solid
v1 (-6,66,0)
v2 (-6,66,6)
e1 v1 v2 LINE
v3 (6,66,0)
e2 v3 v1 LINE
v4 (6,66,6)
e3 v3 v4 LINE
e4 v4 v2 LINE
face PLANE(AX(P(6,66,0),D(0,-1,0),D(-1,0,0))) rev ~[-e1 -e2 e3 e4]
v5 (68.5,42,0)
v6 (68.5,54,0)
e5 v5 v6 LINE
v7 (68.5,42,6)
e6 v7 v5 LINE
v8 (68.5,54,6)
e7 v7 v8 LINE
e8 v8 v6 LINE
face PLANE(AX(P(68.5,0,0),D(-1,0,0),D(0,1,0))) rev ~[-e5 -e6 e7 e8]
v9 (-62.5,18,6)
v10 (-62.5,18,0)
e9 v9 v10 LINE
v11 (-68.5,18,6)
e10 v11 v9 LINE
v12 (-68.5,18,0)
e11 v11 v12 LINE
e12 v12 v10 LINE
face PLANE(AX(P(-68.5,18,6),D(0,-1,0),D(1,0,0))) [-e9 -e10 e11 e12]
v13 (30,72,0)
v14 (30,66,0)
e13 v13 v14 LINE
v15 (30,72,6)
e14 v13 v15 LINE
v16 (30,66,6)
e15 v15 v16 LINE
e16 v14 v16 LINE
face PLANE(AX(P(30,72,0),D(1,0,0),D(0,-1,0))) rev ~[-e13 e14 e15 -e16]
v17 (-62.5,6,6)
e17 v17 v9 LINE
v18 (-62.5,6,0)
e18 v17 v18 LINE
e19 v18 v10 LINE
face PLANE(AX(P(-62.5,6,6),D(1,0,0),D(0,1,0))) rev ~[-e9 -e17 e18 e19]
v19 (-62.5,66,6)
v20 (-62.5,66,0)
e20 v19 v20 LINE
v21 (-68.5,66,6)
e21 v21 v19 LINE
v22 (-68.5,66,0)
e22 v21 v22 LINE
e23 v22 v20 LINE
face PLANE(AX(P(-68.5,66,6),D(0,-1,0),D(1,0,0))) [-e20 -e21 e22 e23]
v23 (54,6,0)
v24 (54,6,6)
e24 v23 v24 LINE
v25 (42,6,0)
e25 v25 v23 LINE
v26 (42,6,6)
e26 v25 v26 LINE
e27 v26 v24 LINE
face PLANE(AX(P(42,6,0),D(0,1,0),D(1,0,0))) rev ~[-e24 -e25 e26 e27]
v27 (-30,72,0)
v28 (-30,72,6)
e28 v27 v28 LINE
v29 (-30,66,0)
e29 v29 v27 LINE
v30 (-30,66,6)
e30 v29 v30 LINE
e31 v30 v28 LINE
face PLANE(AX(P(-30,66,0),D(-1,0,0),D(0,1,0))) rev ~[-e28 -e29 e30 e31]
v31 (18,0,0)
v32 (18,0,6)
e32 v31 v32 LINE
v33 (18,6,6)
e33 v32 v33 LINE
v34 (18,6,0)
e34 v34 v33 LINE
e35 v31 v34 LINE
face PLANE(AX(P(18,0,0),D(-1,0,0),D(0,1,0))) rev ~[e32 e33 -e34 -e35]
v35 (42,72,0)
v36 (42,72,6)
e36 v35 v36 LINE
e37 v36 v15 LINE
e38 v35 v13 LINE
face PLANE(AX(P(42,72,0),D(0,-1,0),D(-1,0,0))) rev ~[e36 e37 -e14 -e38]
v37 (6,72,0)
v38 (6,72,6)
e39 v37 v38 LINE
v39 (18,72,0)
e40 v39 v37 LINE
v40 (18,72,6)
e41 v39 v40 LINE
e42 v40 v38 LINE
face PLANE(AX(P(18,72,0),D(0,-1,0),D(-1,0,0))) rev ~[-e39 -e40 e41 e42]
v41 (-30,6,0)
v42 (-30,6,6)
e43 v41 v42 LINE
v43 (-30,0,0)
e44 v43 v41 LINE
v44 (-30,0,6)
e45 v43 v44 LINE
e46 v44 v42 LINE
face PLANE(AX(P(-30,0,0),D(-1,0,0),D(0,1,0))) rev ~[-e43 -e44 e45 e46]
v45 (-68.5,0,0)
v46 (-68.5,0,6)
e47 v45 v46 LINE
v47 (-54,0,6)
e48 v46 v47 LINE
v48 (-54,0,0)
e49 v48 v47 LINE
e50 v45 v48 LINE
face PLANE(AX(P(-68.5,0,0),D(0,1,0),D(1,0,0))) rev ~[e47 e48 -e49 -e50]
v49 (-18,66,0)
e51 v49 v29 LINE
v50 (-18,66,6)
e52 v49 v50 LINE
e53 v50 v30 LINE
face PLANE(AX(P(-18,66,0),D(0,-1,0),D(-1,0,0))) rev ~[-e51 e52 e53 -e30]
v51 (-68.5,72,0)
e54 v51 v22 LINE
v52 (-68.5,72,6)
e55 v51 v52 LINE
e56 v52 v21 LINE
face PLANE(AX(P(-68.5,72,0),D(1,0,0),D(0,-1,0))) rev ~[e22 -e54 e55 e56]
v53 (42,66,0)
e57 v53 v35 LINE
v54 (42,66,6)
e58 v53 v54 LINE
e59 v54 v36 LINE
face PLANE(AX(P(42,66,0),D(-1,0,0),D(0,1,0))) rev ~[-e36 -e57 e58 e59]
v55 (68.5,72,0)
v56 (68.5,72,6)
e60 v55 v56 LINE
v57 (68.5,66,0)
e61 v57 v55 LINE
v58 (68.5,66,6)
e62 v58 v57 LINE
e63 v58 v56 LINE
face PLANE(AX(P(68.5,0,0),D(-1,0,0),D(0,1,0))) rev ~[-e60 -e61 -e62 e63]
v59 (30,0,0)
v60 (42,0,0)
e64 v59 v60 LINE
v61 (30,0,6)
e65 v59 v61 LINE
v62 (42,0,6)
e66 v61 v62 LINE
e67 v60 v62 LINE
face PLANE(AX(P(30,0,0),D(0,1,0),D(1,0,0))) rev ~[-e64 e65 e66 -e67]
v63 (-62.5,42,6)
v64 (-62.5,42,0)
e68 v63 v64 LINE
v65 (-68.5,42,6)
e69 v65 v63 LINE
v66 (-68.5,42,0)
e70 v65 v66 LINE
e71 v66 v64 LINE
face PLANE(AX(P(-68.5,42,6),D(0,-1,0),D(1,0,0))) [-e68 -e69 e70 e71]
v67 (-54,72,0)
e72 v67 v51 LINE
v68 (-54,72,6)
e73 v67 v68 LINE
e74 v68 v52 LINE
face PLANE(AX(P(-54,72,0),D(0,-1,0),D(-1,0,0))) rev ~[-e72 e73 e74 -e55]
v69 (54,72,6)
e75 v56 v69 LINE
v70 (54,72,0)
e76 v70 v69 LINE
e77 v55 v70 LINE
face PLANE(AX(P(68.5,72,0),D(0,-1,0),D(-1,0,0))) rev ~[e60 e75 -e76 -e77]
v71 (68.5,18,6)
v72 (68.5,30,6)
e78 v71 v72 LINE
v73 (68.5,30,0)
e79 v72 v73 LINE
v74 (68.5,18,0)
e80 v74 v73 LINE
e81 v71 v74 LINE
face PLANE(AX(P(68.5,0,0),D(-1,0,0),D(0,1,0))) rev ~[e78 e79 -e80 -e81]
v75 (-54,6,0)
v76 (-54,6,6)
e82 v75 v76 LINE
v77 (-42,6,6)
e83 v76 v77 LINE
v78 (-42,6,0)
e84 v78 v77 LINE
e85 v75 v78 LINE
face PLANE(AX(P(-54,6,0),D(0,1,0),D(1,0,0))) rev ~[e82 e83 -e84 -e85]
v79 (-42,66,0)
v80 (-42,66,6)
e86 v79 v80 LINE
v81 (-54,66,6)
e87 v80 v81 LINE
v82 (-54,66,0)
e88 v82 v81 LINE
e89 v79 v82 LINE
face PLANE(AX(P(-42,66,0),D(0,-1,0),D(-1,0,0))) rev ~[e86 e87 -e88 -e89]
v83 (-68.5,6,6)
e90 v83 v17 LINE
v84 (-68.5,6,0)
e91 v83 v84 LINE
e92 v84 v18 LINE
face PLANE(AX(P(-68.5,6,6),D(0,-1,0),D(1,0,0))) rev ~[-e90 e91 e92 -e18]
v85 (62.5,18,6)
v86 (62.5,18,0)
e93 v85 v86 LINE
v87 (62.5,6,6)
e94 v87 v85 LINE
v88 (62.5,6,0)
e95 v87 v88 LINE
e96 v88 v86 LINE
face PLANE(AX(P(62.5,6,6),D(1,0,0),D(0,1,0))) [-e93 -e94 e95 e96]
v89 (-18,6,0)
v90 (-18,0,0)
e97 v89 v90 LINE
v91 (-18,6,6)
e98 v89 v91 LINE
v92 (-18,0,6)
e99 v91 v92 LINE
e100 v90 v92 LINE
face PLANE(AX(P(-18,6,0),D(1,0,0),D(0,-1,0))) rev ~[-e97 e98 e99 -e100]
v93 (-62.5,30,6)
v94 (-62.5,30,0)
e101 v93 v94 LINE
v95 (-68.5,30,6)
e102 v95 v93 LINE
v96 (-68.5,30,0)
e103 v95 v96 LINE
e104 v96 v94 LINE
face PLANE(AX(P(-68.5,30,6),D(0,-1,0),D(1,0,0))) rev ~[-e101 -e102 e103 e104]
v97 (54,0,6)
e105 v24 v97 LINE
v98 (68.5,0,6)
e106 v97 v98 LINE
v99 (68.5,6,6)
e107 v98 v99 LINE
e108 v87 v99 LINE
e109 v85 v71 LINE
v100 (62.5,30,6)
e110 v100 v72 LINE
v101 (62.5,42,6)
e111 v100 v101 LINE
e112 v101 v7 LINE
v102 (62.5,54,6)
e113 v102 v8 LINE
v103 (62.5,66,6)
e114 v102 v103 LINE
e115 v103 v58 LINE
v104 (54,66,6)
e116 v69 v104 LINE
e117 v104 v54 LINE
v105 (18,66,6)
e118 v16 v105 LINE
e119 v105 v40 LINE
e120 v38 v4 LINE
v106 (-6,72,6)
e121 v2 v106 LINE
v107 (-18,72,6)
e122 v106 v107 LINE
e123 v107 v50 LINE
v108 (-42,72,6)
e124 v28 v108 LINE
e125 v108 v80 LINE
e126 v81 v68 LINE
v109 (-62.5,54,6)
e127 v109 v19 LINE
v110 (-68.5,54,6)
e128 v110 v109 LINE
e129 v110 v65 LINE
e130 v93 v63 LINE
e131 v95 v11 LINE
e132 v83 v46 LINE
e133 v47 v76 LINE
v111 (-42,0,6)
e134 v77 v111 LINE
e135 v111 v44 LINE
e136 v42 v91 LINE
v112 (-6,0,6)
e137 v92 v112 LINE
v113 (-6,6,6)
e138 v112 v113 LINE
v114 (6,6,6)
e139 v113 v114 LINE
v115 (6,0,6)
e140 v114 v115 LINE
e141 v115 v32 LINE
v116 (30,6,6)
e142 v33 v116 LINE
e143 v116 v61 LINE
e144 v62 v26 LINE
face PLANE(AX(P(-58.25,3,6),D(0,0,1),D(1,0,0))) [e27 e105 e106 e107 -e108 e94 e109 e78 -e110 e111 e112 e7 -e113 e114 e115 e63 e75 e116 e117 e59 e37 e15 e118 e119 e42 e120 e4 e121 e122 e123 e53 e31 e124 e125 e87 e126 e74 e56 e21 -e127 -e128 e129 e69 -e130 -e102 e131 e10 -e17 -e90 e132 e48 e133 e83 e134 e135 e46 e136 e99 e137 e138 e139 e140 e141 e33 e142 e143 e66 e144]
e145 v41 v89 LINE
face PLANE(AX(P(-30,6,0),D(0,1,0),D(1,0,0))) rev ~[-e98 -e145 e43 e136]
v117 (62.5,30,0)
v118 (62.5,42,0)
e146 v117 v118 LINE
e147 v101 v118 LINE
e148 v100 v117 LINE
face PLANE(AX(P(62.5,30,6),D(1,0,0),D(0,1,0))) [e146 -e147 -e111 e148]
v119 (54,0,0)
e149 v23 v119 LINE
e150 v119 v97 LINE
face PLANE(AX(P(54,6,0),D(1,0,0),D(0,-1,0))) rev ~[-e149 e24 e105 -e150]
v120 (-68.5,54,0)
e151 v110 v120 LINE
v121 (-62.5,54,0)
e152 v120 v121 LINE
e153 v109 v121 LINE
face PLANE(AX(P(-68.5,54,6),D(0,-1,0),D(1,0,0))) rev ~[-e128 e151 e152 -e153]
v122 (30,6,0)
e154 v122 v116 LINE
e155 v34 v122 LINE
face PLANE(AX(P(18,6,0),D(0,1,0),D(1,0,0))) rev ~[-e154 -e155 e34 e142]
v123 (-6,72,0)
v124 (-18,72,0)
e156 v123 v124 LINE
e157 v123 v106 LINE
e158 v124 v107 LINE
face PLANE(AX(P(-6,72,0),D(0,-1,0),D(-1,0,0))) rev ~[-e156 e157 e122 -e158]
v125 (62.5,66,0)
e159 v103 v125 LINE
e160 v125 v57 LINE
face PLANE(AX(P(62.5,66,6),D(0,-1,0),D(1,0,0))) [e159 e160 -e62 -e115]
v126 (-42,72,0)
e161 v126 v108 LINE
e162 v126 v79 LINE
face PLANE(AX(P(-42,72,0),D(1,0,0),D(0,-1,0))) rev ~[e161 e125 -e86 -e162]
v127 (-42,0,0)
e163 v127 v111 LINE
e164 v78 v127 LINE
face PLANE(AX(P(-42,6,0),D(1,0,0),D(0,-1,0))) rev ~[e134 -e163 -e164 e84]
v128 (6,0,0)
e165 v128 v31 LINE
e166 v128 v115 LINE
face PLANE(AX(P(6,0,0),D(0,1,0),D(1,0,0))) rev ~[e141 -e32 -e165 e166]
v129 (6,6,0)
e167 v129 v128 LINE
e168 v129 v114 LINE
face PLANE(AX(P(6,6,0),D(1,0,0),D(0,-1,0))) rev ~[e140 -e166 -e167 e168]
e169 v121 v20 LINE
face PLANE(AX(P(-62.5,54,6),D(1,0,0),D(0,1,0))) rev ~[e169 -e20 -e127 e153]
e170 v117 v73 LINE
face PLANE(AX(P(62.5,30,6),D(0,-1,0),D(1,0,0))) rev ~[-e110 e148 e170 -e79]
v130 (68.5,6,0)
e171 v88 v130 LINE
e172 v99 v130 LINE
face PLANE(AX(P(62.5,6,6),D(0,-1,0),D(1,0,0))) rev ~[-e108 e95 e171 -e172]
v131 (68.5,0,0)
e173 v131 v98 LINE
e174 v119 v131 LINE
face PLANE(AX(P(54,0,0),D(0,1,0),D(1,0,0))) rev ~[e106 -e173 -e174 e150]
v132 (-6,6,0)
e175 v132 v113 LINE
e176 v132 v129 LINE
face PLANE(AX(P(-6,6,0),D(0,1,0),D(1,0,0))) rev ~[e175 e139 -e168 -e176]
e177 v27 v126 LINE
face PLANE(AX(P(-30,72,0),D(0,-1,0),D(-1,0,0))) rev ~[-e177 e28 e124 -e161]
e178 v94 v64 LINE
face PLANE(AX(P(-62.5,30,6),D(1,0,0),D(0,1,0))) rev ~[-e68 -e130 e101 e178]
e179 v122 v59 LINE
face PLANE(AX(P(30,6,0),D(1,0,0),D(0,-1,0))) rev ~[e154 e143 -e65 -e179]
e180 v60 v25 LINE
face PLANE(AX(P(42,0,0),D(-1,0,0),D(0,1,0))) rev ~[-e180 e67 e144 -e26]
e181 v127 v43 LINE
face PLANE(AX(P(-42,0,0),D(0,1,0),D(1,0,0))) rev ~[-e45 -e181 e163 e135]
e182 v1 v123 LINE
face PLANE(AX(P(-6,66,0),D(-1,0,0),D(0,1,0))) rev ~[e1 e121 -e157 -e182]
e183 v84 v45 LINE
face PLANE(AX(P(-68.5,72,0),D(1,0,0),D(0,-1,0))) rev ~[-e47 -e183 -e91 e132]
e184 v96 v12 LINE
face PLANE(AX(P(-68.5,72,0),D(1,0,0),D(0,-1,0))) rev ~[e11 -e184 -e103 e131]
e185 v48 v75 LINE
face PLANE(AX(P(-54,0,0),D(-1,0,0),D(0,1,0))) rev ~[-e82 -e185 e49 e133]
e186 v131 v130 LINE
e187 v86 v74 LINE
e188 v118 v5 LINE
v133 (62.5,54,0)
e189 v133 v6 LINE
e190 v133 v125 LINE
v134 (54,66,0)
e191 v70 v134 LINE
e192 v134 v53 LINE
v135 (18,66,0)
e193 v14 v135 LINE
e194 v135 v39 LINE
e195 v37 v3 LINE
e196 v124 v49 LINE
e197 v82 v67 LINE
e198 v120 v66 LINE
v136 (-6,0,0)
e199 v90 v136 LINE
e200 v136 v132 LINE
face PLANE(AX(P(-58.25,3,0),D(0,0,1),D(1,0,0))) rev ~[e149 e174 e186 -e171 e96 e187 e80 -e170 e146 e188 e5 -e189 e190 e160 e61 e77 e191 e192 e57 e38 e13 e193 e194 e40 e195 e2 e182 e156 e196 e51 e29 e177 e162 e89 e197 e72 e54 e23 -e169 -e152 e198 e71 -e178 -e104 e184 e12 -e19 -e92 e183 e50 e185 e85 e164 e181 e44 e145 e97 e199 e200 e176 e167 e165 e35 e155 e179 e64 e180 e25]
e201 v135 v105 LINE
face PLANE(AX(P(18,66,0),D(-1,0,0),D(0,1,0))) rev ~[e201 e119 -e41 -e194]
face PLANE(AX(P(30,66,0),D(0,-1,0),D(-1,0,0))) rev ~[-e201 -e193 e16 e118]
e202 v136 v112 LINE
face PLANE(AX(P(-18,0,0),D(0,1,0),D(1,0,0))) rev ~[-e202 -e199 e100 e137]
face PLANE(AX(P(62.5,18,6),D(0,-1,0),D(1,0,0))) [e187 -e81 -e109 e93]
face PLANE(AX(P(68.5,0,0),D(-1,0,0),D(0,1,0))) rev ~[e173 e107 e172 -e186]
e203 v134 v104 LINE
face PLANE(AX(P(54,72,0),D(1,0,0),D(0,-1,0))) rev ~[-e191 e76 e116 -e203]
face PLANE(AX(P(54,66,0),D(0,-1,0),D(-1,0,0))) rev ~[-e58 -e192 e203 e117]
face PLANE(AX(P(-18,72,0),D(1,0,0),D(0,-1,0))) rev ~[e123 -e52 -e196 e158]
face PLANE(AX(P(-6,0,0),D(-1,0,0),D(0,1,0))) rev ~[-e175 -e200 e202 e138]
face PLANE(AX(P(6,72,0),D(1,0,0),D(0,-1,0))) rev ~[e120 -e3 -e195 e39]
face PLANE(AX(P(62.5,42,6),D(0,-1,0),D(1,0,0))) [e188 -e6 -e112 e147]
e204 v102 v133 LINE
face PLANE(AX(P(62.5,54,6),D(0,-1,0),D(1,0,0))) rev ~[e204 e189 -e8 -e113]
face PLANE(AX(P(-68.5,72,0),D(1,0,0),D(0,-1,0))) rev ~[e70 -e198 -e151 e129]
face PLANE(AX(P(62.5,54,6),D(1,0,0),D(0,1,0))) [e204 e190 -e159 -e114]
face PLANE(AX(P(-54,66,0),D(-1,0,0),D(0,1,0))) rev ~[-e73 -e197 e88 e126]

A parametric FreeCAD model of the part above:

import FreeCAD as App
import Part
import Sketcher
from FreeCAD import Vector
Q = App.Units.Quantity


def add_polygon(sketch, points):
    """Adds a closed chain of lines whose ends are joined by coincident constraints."""
    first, n = sketch.GeometryCount, len(points)
    for a, b in zip(points, points[1:] + points[:1]):
        sketch.addGeometry(Part.LineSegment(App.Vector(*a, 0), App.Vector(*b, 0)), False)
    for i in range(n):
        sketch.addConstraint(Sketcher.Constraint("Coincident", first + i, 2, first + (i + 1) % n, 1))

doc = App.newDocument("Part")
body = doc.addObject("PartDesign::Body", "Body")

sketch1 = body.newObject("Sketcher::SketchObject", "Sketch")
sketch1.AttachmentSupport = (doc.getObject("XY_Plane"), [""])
sketch1.MapMode = "FlatFace"
add_polygon(sketch1, [(-54, 0), (-54, 6), (-42, 6), (-42, 0), (-30, 0), (-30, 6), (-18, 6), (-18, 0), (-6, 0), (-6, 6), (6, 6), (6, 0), (18, 0), (18, 6), (30, 6), (30, 0), (42, 0), (42, 6), (54, 6), (54, 0), (68.5, 0), (68.5, 72), (54, 72), (54, 66), (42, 66), (42, 72), (30, 72), (30, 66), (18, 66), (18, 72), (6, 72), (6, 66), (-6, 66), (-6, 72), (-18, 72), (-18, 66), (-30, 66), (-30, 72), (-42, 72), (-42, 66), (-54, 66), (-54, 72), (-68.5, 72), (-68.5, 0)])
sketch1.addConstraint([
    Sketcher.Constraint("Vertical", 0),
    Sketcher.Constraint("Horizontal", 1),
    Sketcher.Constraint("Vertical", 2),
    Sketcher.Constraint("Horizontal", 3),
    Sketcher.Constraint("Vertical", 4),
    Sketcher.Constraint("Horizontal", 5),
    Sketcher.Constraint("Vertical", 6),
    Sketcher.Constraint("Horizontal", 7),
    Sketcher.Constraint("Vertical", 8),
    Sketcher.Constraint("Horizontal", 9),
    Sketcher.Constraint("Vertical", 10),
    Sketcher.Constraint("Horizontal", 11),
    Sketcher.Constraint("Vertical", 12),
    Sketcher.Constraint("Horizontal", 13),
    Sketcher.Constraint("Vertical", 14),
    Sketcher.Constraint("Horizontal", 15),
    Sketcher.Constraint("Vertical", 16),
    Sketcher.Constraint("Horizontal", 17),
    Sketcher.Constraint("Vertical", 18),
    Sketcher.Constraint("Horizontal", 19),
    Sketcher.Constraint("Vertical", 20),
    Sketcher.Constraint("Horizontal", 21),
    Sketcher.Constraint("Vertical", 22),
    Sketcher.Constraint("Horizontal", 23),
    Sketcher.Constraint("Vertical", 24),
    Sketcher.Constraint("Horizontal", 25),
    Sketcher.Constraint("Vertical", 26),
    Sketcher.Constraint("Horizontal", 27),
    Sketcher.Constraint("Vertical", 28),
    Sketcher.Constraint("Horizontal", 29),
    Sketcher.Constraint("Vertical", 30),
    Sketcher.Constraint("Horizontal", 31),
    Sketcher.Constraint("Vertical", 32),
    Sketcher.Constraint("Horizontal", 33),
    Sketcher.Constraint("Vertical", 34),
    Sketcher.Constraint("Horizontal", 35),
    Sketcher.Constraint("Vertical", 36),
    Sketcher.Constraint("Horizontal", 37),
    Sketcher.Constraint("Vertical", 38),
    Sketcher.Constraint("Horizontal", 39),
    Sketcher.Constraint("Vertical", 40),
    Sketcher.Constraint("Horizontal", 41),
    Sketcher.Constraint("Vertical", 42),
    Sketcher.Constraint("Horizontal", 43),
    Sketcher.Constraint("Symmetric", 7, 2, 10, 2, -1, 1),
    Sketcher.Constraint("Symmetric", 3, 2, 14, 2, -1, 1),
    Sketcher.Constraint("Symmetric", 19, 2, 42, 2, -1, 1),
    Sketcher.Constraint("Symmetric", 6, 2, 11, 2, -2),
    Sketcher.Constraint("Symmetric", 2, 2, 15, 2, -2),
    Sketcher.Constraint("Symmetric", 0, 2, 17, 2, -2),
    Sketcher.Constraint("Symmetric", 29, 2, 32, 2, -2),
    Sketcher.Constraint("Symmetric", 27, 2, 34, 2, -2),
    Sketcher.Constraint("Symmetric", 25, 2, 36, 2, -2),
    Sketcher.Constraint("Symmetric", 23, 2, 38, 2, -2),
    Sketcher.Constraint("Symmetric", 21, 2, 40, 2, -2),
    Sketcher.Constraint("PointOnObject", 18, 2, -1),
    Sketcher.Constraint("Horizontal", 1, 2, 4, 2),
    Sketcher.Constraint("Horizontal", 5, 2, 8, 2),
    Sketcher.Constraint("Horizontal", 9, 2, 12, 2),
    Sketcher.Constraint("Horizontal", 21, 2, 24, 2),
    Sketcher.Constraint("Horizontal", 23, 2, 26, 2),
    Sketcher.Constraint("Horizontal", 25, 2, 28, 2),
    Sketcher.Constraint("Horizontal", 27, 2, 30, 2),
    Sketcher.Constraint("Vertical", 18, 2, 21, 2),
    Sketcher.Constraint("Vertical", 16, 2, 23, 2),
    Sketcher.Constraint("Vertical", 14, 2, 25, 2),
    Sketcher.Constraint("Vertical", 12, 2, 27, 2),
    Sketcher.Constraint("Vertical", 10, 2, 29, 2),
    Sketcher.Constraint("Equal", 1, 3),
    Sketcher.Constraint("Equal", 3, 5),
    Sketcher.Constraint("Equal", 5, 7),
    Sketcher.Constraint("Equal", 7, 9),
    Sketcher.Constraint("Equal", 18, 22),
    Sketcher.Constraint("DistanceX", 1, 1, 1, 2, Q("12 mm")),
    Sketcher.Constraint("DistanceY", 0, 1, 0, 2, Q("6 mm")),
    Sketcher.Constraint("DistanceY", 20, 1, 20, 2, Q("72 mm")),
    Sketcher.Constraint("DistanceX", 19, 1, 19, 2, Q("14.5 mm")),
])
pad1 = body.newObject("PartDesign::Pad", "Pad")
pad1.Profile = sketch1
pad1.Length = 6

sketch2 = body.newObject("Sketcher::SketchObject", "Sketch001")
sketch2.AttachmentSupport = (doc.getObject("XY_Plane"), [""])
sketch2.MapMode = "FlatFace"
sketch2.AttachmentOffset = App.Placement(Vector(0, 0, 6), App.Rotation())
add_polygon(sketch2, [(-68.5, 66), (-68.5, 54), (-62.5, 54), (-62.5, 66)])
add_polygon(sketch2, [(-68.5, 18), (-68.5, 6), (-62.5, 6), (-62.5, 18)])
add_polygon(sketch2, [(62.5, 42), (62.5, 30), (68.5, 30), (68.5, 42)])
add_polygon(sketch2, [(62.5, 18), (62.5, 6), (68.5, 6), (68.5, 18)])
add_polygon(sketch2, [(-68.5, 42), (-68.5, 30), (-62.5, 30), (-62.5, 42)])
add_polygon(sketch2, [(62.5, 66), (62.5, 54), (68.5, 54), (68.5, 66)])
sketch2.addConstraint([
    Sketcher.Constraint("Vertical", 0),
    Sketcher.Constraint("Horizontal", 1),
    Sketcher.Constraint("Vertical", 2),
    Sketcher.Constraint("Horizontal", 3),
    Sketcher.Constraint("Vertical", 4),
    Sketcher.Constraint("Horizontal", 5),
    Sketcher.Constraint("Vertical", 6),
    Sketcher.Constraint("Horizontal", 7),
    Sketcher.Constraint("Vertical", 8),
    Sketcher.Constraint("Horizontal", 9),
    Sketcher.Constraint("Vertical", 10),
    Sketcher.Constraint("Horizontal", 11),
    Sketcher.Constraint("Vertical", 12),
    Sketcher.Constraint("Horizontal", 13),
    Sketcher.Constraint("Vertical", 14),
    Sketcher.Constraint("Horizontal", 15),
    Sketcher.Constraint("Vertical", 16),
    Sketcher.Constraint("Horizontal", 17),
    Sketcher.Constraint("Vertical", 18),
    Sketcher.Constraint("Horizontal", 19),
    Sketcher.Constraint("Vertical", 20),
    Sketcher.Constraint("Horizontal", 21),
    Sketcher.Constraint("Vertical", 22),
    Sketcher.Constraint("Horizontal", 23),
    Sketcher.Constraint("Symmetric", 5, 2, 12, 2, -2),
    Sketcher.Constraint("Symmetric", 7, 2, 14, 2, -2),
    Sketcher.Constraint("Symmetric", 9, 2, 16, 2, -2),
    Sketcher.Constraint("Symmetric", 11, 2, 18, 2, -2),
    Sketcher.Constraint("Symmetric", 1, 2, 20, 2, -2),
    Sketcher.Constraint("Symmetric", 3, 2, 22, 2, -2),
    Sketcher.Constraint("Vertical", 3, 2, 4, 2),
    Sketcher.Constraint("Vertical", 2, 2, 5, 2),
    Sketcher.Constraint("Vertical", 11, 2, 12, 2),
    Sketcher.Constraint("Vertical", 10, 2, 13, 2),
    Sketcher.Constraint("Equal", 2, 4),
    Sketcher.Constraint("Equal", 6, 8),
    Sketcher.Constraint("DistanceX", 1, 1, 1, 2, Q("6 mm")),
    Sketcher.Constraint("DistanceY", 0, 2, 0, 1, Q("12 mm")),
    Sketcher.Constraint("DistanceY", -1, 1, 0, 2, Q("54 mm")),
    Sketcher.Constraint("DistanceY", -1, 1, 4, 2, Q("6 mm")),
    Sketcher.Constraint("DistanceY", -1, 1, 8, 2, Q("30 mm")),
    Sketcher.Constraint("DistanceX", 6, 2, 8, 2, Q("125 mm")),
])
pocket1 = body.newObject("PartDesign::Pocket", "Pocket")
pocket1.Profile = sketch2
pocket1.Length = 6

doc.recompute()
